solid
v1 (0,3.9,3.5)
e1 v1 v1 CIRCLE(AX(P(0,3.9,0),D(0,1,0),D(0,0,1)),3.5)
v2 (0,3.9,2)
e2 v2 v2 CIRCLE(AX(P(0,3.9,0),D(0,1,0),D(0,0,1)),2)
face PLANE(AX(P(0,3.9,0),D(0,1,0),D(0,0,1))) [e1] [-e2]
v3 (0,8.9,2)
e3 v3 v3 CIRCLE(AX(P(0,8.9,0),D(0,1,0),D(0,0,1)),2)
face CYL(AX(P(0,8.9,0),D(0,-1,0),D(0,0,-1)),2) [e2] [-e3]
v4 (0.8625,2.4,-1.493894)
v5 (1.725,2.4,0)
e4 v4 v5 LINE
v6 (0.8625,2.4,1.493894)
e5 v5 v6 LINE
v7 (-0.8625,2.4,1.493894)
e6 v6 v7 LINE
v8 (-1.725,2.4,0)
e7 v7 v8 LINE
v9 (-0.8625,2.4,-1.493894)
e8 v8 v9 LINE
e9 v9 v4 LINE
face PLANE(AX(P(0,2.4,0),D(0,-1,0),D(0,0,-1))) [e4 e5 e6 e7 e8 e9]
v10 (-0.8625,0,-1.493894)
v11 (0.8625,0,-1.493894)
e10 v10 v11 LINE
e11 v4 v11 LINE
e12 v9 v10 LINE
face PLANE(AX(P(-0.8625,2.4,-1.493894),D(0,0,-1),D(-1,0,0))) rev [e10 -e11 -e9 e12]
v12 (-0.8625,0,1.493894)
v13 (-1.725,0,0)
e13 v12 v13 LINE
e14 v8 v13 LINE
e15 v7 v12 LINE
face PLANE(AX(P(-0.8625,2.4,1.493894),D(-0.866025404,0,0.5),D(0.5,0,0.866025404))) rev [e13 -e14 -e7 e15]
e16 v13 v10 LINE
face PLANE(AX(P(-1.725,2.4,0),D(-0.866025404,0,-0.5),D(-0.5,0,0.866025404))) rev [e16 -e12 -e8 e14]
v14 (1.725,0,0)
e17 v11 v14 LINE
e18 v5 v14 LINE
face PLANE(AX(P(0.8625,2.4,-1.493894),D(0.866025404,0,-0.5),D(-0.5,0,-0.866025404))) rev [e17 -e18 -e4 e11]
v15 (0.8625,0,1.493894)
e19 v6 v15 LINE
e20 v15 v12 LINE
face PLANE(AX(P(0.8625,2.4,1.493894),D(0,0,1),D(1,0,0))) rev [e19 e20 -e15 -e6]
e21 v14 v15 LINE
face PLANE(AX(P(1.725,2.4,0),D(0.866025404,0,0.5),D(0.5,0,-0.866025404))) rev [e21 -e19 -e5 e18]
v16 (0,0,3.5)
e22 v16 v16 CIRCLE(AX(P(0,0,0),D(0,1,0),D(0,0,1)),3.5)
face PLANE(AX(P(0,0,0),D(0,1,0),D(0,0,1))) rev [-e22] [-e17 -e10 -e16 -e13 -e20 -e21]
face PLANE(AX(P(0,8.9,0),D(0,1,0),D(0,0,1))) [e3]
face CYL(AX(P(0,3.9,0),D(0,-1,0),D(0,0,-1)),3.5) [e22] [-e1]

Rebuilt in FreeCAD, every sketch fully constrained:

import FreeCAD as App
import Part
import Sketcher
Q = App.Units.Quantity

doc = App.newDocument("Part")
params = doc.addObject("Spreadsheet::Sheet", "Params")
for row, (alias, value) in enumerate([
    ("sketch1_diameter", "7 mm"),
    ("pad1_length", "3.9 mm"),
    ("sketch2_diameter", "4 mm"),
    ("pad2_length", "5 mm"),
    ("pocket1_length", "2.4 mm"),
], start=1):
    params.set(f"A{row}", alias)
    params.set(f"B{row}", "=" + value)
    params.setAlias(f"B{row}", alias)

body = doc.addObject("PartDesign::Body", "Body")

# Sketch on XZ plane
sketch1 = doc.addObject("Sketcher::SketchObject", "Sketch")
body.addObject(sketch1)
sketch1.AttachmentSupport = (doc.XZ_Plane, [""])
sketch1.MapMode = "FlatFace"
sketch1.addGeometry(Part.Circle(App.Vector(0, 0, 0), App.Vector(0, 0, 1), 3.5), False)
sketch1.addConstraint(Sketcher.Constraint("Coincident", 0, 3, -1, 1))
sketch1.addConstraint(Sketcher.Constraint("Diameter", 0, Q("7 mm")))
sketch1.setExpression("Constraints[1]", "Params.sketch1_diameter")
pad1 = doc.addObject("PartDesign::Pad", "Pad")
body.addObject(pad1)
pad1.Profile = sketch1
pad1.setExpression("Length", "Params.pad1_length")
pad1.Reversed = True

# Sketch on XZ plane
sketch2 = doc.addObject("Sketcher::SketchObject", "Sketch001")
body.addObject(sketch2)
sketch2.AttachmentSupport = (doc.XZ_Plane, [""])
sketch2.MapMode = "FlatFace"
sketch2.AttachmentOffset = App.Placement(App.Vector(0, 0, -3.9), App.Rotation())
sketch2.addGeometry(Part.Circle(App.Vector(0, 0, 0), App.Vector(0, 0, 1), 2), False)
sketch2.addConstraint(Sketcher.Constraint("Coincident", 0, 3, -1, 1))
sketch2.addConstraint(Sketcher.Constraint("Diameter", 0, Q("4 mm")))
sketch2.setExpression("Constraints[1]", "Params.sketch2_diameter")
pad2 = doc.addObject("PartDesign::Pad", "Pad001")
body.addObject(pad2)
pad2.Profile = sketch2
pad2.setExpression("Length", "Params.pad2_length")
pad2.Reversed = True

# Sketch on XZ plane
sketch3 = doc.addObject("Sketcher::SketchObject", "Sketch002")
body.addObject(sketch3)
sketch3.AttachmentSupport = (doc.XZ_Plane, [""])
sketch3.MapMode = "FlatFace"
sketch3.addGeometry(Part.LineSegment(App.Vector(1.7, 0, 0), App.Vector(0.9, 1.5, 0)), False)
sketch3.addGeometry(Part.LineSegment(App.Vector(0.9, 1.5, 0), App.Vector(-0.9, 1.5, 0)), False)
sketch3.addGeometry(Part.LineSegment(App.Vector(-0.9, 1.5, 0), App.Vector(-1.7, 0, 0)), False)
sketch3.addGeometry(Part.LineSegment(App.Vector(-1.7, 0, 0), App.Vector(-0.9, -1.5, 0)), False)
sketch3.addGeometry(Part.LineSegment(App.Vector(-0.9, -1.5, 0), App.Vector(0.9, -1.5, 0)), False)
sketch3.addGeometry(Part.LineSegment(App.Vector(0.9, -1.5, 0), App.Vector(1.7, 0, 0)), False)
sketch3.addConstraint(Sketcher.Constraint("Coincident", 0, 2, 1, 1))
sketch3.addConstraint(Sketcher.Constraint("Coincident", 1, 2, 2, 1))
sketch3.addConstraint(Sketcher.Constraint("Coincident", 2, 2, 3, 1))
sketch3.addConstraint(Sketcher.Constraint("Coincident", 3, 2, 4, 1))
sketch3.addConstraint(Sketcher.Constraint("Coincident", 4, 2, 5, 1))
sketch3.addConstraint(Sketcher.Constraint("Coincident", 5, 2, 0, 1))
sketch3.addConstraint(Sketcher.Constraint("Horizontal", 1))
sketch3.addConstraint(Sketcher.Constraint("Horizontal", 4))
sketch3.addConstraint(Sketcher.Constraint("Symmetric", 0, 2, 3, 2, -1, 1))
sketch3.addConstraint(Sketcher.Constraint("Symmetric", 2, 2, 5, 2, -1, 1))
sketch3.addConstraint(Sketcher.Constraint("PointOnObject", 2, 2, -1))
sketch3.addConstraint(Sketcher.Constraint("Parallel", 2, 5))
sketch3.addConstraint(Sketcher.Constraint("Vertical", 1, 2, 3, 2))
sketch3.addConstraint(Sketcher.Constraint("Angle", 0, Q("120 deg")))
sketch3.addConstraint(Sketcher.Constraint("DistanceX", 1, 2, 1, 1, Q("1.725 mm")))
sketch3.addConstraint(Sketcher.Constraint("DistanceX", 2, 2, 5, 2, Q("3.45 mm")))
pocket1 = doc.addObject("PartDesign::Pocket", "Pocket")
body.addObject(pocket1)
pocket1.Profile = sketch3
pocket1.setExpression("Length", "Params.pocket1_length")

doc.recompute()
